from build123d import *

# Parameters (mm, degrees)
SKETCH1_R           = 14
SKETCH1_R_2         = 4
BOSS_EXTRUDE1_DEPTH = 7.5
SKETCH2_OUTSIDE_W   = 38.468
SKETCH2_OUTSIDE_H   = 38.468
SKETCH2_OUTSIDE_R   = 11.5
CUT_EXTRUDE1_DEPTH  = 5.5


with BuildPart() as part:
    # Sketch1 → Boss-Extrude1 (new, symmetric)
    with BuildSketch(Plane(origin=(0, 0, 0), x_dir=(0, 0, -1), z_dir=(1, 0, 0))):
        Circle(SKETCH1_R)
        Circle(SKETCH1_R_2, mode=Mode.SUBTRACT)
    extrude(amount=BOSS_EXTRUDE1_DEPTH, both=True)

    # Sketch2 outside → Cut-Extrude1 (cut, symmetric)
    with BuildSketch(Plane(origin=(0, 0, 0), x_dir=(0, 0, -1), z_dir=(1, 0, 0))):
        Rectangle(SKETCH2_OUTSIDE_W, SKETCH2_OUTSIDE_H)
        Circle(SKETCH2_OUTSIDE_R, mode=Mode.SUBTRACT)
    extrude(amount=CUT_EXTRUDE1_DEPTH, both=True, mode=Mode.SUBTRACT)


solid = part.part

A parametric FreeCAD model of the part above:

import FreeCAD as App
import Part
import Sketcher
from FreeCAD import Vector


def add_polygon(sketch, points):
    """Adds a closed chain of lines whose ends are joined by coincident constraints."""
    first, n = sketch.GeometryCount, len(points)
    for a, b in zip(points, points[1:] + points[:1]):
        sketch.addGeometry(Part.LineSegment(App.Vector(*a, 0), App.Vector(*b, 0)), False)
    for i in range(n):
        sketch.addConstraint(Sketcher.Constraint("Coincident", first + i, 2, first + (i + 1) % n, 1))

doc = App.newDocument("Part")
body = doc.addObject("PartDesign::Body", "Body")

sketch1 = body.newObject("Sketcher::SketchObject", "Sketch")
sketch1.AttachmentSupport = (doc.getObject("YZ_Plane"), [""])
sketch1.MapMode = "FlatFace"
sketch1.addGeometry([
    Part.Circle(Vector(0, 0, 0), Vector(0, 0, 1), 14),
    Part.Circle(Vector(0, 0, 0), Vector(0, 0, 1), 4),
], False)
sketch1.addConstraint([
    Sketcher.Constraint("Coincident", 0, 3, -1, 1),
    Sketcher.Constraint("Coincident", 1, 3, -1, 1),
    Sketcher.Constraint("Diameter", 0, 28.0),
    Sketcher.Constraint("Diameter", 1, 8.0),
])
pad1 = body.newObject("PartDesign::Pad", "Pad")
pad1.Profile = sketch1
pad1.Length = 15
pad1.Midplane = True

sketch2 = body.newObject("Sketcher::SketchObject", "Sketch001")
sketch2.AttachmentSupport = (doc.getObject("YZ_Plane"), [""])
sketch2.MapMode = "FlatFace"
add_polygon(sketch2, [(19, 19), (-19, 19), (-19, -19), (19, -19)])
sketch2.addGeometry(Part.Circle(Vector(0, 0, 0), Vector(0, 0, 1), 12), False)
sketch2.addConstraint([
    Sketcher.Constraint("Horizontal", 0),
    Sketcher.Constraint("Vertical", 1),
    Sketcher.Constraint("Horizontal", 2),
    Sketcher.Constraint("Vertical", 3),
    Sketcher.Constraint("Coincident", 4, 3, -1, 1),
    Sketcher.Constraint("Symmetric", 0, 2, 2, 2, -1, 1),
    Sketcher.Constraint("Equal", 2, 1),
    Sketcher.Constraint("Diameter", 4, 23.0),
    Sketcher.Constraint("DistanceX", 0, 2, 0, 1, 38.468),
])
pocket1 = body.newObject("PartDesign::Pocket", "Pocket")
pocket1.Profile = sketch2
pocket1.Length = 11
pocket1.Midplane = True

doc.recompute()
